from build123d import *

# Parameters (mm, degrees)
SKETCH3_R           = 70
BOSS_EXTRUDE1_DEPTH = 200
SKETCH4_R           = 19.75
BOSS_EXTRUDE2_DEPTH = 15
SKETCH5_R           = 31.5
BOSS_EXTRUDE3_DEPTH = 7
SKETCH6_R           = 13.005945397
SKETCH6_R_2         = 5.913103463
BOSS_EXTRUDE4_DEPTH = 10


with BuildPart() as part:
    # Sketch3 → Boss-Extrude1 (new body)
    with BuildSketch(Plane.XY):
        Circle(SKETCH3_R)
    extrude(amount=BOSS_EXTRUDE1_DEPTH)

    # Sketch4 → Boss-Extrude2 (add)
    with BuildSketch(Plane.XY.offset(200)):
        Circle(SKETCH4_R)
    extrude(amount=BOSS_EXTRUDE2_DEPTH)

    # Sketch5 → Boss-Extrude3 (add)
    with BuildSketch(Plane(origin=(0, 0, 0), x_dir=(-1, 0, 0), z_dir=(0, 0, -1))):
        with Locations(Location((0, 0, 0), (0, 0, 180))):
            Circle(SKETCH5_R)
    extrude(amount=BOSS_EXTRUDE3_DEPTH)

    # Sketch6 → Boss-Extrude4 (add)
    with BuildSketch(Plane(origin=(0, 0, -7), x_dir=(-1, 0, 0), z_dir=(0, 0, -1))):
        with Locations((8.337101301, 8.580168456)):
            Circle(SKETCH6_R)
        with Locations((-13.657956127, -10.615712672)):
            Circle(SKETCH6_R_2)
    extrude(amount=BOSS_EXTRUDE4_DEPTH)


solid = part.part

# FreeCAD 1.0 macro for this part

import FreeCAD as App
import Part
import Sketcher

doc = App.newDocument("Part")
body = doc.addObject("PartDesign::Body", "Body")

sketch1 = body.newObject("Sketcher::SketchObject", "Sketch")
sketch1.AttachmentSupport = (doc.getObject("XY_Plane"), [""])
sketch1.MapMode = "FlatFace"
sketch1.addGeometry(Part.Circle(App.Vector(0, 0, 0), App.Vector(0, 0, 1), 70), False)
sketch1.addConstraint(Sketcher.Constraint("Coincident", 0, 3, -1, 1))
sketch1.addConstraint(Sketcher.Constraint("Diameter", 0, 140.0))
pad1 = body.newObject("PartDesign::Pad", "Pad")
pad1.Profile = sketch1
pad1.Length = 200

sketch2 = body.newObject("Sketcher::SketchObject", "Sketch001")
sketch2.AttachmentSupport = (doc.getObject("XY_Plane"), [""])
sketch2.MapMode = "FlatFace"
sketch2.AttachmentOffset = App.Placement(App.Vector(0, 0, 200), App.Rotation())
sketch2.addGeometry(Part.Circle(App.Vector(0, 0, 0), App.Vector(0, 0, 1), 19.75), False)
sketch2.addConstraint(Sketcher.Constraint("Coincident", 0, 3, -1, 1))
sketch2.addConstraint(Sketcher.Constraint("Diameter", 0, 39.5))
pad2 = body.newObject("PartDesign::Pad", "Pad001")
pad2.Profile = sketch2
pad2.Length = 15

sketch3 = body.newObject("Sketcher::SketchObject", "Sketch002")
sketch3.AttachmentSupport = (doc.getObject("XY_Plane"), [""])
sketch3.MapMode = "FlatFace"
sketch3.addGeometry(Part.Circle(App.Vector(0, 0, 0), App.Vector(0, 0, 1), 31.5), False)
sketch3.addConstraint(Sketcher.Constraint("Coincident", 0, 3, -1, 1))
sketch3.addConstraint(Sketcher.Constraint("Diameter", 0, 63.0))
pad3 = body.newObject("PartDesign::Pad", "Pad002")
pad3.Profile = sketch3
pad3.Length = 7
pad3.Reversed = True

sketch4 = body.newObject("Sketcher::SketchObject", "Sketch003")
sketch4.AttachmentSupport = (doc.getObject("XY_Plane"), [""])
sketch4.MapMode = "FlatFace"
sketch4.AttachmentOffset = App.Placement(App.Vector(0, 0, -7), App.Rotation())
sketch4.addGeometry(Part.Circle(App.Vector(-8.337101, 8.580168, 0), App.Vector(0, 0, 1), 13.005945), False)
sketch4.addGeometry(Part.Circle(App.Vector(13.657956, -10.615713, 0), App.Vector(0, 0, 1), 5.913103), False)
sketch4.addConstraint(Sketcher.Constraint("Diameter", 0, 26.011891))
sketch4.addConstraint(Sketcher.Constraint("Diameter", 1, 11.826207))
sketch4.addConstraint(Sketcher.Constraint("DistanceX", 0, 3, -1, 1, 8.337101))
sketch4.addConstraint(Sketcher.Constraint("DistanceY", -1, 1, 0, 3, 8.580168))
sketch4.addConstraint(Sketcher.Constraint("DistanceY", 1, 3, 0, 3, 19.195881))
sketch4.addConstraint(Sketcher.Constraint("DistanceX", -1, 1, 1, 3, 13.657956))
pad4 = body.newObject("PartDesign::Pad", "Pad003")
pad4.Profile = sketch4
pad4.Length = 10
pad4.Reversed = True

doc.recompute()
